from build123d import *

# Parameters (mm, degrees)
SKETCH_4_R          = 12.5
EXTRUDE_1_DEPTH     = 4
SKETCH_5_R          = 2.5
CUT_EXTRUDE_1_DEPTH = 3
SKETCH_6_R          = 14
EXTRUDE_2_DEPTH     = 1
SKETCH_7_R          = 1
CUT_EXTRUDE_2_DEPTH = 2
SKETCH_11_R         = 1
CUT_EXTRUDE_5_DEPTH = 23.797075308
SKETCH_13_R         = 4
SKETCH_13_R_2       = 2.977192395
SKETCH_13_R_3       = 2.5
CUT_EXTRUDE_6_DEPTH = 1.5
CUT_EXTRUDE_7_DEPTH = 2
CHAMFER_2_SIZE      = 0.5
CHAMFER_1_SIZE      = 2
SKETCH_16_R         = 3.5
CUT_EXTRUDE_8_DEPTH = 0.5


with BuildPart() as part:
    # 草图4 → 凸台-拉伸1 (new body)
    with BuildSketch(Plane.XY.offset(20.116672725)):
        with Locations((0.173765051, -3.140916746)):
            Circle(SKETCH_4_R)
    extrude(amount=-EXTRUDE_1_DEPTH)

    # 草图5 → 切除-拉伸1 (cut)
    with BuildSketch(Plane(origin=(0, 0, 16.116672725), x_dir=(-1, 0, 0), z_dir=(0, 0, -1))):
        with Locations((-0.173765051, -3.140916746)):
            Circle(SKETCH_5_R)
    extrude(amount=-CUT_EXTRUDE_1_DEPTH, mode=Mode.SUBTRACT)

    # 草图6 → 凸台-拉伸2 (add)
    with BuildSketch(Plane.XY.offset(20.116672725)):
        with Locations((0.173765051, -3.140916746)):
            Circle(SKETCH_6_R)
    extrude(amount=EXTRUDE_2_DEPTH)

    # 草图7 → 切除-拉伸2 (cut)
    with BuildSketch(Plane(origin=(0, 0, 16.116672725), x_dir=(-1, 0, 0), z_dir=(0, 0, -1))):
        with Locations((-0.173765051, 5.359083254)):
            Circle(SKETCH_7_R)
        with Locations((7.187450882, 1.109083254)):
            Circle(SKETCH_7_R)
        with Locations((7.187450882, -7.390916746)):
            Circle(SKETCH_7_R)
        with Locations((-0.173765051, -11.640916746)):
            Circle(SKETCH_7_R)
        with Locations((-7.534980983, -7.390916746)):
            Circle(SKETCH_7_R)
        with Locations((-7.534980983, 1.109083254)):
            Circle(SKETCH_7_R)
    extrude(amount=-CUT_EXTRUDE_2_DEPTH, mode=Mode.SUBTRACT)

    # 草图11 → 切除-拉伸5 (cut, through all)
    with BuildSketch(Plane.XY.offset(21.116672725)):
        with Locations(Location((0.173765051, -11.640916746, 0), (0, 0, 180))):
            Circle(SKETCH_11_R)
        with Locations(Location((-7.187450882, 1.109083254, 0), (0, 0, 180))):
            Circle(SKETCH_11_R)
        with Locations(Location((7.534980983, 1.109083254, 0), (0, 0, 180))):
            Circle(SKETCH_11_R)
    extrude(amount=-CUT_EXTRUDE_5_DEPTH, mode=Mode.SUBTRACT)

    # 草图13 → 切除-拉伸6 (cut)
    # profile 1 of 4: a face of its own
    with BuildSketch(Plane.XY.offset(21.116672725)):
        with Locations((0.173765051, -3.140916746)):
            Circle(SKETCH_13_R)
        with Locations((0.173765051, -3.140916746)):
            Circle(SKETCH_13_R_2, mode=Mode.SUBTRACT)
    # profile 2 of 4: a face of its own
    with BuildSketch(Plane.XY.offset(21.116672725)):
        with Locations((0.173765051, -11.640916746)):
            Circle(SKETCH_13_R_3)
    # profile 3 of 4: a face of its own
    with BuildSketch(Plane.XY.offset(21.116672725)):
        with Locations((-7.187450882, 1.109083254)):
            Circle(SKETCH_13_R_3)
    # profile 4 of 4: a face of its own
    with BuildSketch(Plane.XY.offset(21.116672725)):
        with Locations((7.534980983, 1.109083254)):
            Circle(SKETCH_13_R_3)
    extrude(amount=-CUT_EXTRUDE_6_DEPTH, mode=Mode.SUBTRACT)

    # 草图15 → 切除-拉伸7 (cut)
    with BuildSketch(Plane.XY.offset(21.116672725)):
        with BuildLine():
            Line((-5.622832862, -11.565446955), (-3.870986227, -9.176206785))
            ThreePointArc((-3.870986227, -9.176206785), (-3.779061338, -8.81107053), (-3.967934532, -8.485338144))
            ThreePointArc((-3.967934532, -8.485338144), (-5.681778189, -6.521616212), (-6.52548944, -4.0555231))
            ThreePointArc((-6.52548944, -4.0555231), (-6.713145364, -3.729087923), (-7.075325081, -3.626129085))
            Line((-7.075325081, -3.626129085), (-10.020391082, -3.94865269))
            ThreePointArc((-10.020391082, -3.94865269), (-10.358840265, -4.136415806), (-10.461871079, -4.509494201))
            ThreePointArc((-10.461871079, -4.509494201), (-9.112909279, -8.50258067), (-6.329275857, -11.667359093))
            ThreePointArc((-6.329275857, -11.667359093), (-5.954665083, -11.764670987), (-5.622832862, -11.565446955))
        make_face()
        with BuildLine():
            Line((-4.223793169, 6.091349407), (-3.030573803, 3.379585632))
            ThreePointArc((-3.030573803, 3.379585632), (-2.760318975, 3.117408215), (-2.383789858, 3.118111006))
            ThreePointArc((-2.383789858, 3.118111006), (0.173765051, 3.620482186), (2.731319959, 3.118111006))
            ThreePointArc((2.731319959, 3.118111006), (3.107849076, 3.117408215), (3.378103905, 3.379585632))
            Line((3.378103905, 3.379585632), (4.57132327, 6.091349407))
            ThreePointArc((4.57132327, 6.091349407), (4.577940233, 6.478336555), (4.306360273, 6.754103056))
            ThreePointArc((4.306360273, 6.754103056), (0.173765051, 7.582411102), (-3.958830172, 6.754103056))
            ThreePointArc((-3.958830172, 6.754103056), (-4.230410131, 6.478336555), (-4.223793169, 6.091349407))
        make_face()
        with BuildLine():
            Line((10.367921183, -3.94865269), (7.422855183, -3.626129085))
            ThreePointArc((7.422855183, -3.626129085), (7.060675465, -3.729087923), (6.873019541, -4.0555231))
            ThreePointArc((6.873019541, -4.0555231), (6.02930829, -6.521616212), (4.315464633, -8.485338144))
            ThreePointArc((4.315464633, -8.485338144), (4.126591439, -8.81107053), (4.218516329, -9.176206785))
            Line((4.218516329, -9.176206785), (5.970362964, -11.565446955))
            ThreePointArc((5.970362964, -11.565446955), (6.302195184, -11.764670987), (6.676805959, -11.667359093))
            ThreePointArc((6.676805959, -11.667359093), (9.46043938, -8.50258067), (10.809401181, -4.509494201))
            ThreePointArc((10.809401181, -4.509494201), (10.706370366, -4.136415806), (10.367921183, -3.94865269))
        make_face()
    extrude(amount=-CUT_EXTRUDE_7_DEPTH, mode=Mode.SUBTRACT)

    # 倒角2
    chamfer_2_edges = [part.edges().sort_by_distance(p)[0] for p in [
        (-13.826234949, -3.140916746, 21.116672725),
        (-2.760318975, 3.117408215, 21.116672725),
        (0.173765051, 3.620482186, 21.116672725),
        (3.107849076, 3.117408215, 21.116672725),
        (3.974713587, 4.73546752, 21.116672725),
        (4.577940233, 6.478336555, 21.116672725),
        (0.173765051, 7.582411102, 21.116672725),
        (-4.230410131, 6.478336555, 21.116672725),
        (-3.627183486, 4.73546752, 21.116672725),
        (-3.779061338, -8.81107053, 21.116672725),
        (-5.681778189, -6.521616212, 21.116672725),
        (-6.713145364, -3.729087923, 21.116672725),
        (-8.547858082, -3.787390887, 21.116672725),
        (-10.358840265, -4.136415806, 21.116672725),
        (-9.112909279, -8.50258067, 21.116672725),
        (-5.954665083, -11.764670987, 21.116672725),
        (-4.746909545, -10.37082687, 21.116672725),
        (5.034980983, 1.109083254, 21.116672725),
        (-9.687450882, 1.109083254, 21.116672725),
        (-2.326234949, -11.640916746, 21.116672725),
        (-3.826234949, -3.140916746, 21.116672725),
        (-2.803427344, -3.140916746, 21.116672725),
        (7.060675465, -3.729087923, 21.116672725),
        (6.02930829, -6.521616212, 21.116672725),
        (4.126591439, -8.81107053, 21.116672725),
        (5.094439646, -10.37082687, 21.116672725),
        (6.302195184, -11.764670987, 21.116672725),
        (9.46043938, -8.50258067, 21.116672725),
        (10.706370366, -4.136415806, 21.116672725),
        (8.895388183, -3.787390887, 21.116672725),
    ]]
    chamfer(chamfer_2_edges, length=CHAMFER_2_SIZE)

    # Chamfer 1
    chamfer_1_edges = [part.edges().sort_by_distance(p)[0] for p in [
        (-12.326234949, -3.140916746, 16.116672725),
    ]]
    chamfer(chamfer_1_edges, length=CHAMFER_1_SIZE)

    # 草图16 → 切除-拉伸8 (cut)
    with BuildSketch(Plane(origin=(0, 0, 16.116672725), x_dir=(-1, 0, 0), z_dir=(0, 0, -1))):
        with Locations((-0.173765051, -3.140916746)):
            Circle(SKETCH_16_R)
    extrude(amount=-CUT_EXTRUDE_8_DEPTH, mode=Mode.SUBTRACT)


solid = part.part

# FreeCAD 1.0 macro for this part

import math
import FreeCAD as App
import Part
import Sketcher
from FreeCAD import Vector


def edges_at(feature, points):
    """Names of the edges that pass closest to the given points."""
    edges = feature.Shape.Edges
    near = lambda p: min(range(len(edges)), key=lambda i: edges[i].distToShape(Part.Vertex(*p))[0])
    return sorted({f"Edge{near(p) + 1}" for p in points})

doc = App.newDocument("Part")
body = doc.addObject("PartDesign::Body", "Body")

# Sketch on XY plane
sketch1 = doc.addObject("Sketcher::SketchObject", "Sketch")
body.addObject(sketch1)
sketch1.AttachmentSupport = (doc.XY_Plane, [""])
sketch1.MapMode = "FlatFace"
sketch1.AttachmentOffset = App.Placement(Vector(0, 0, 20.116673), App.Rotation())
sketch1.addGeometry(Part.Circle(Vector(0.173765, -3.140917, 0), Vector(0, 0, 1), 12.5), False)
sketch1.addConstraint(Sketcher.Constraint("Diameter", 0, 25.0))
sketch1.addConstraint(Sketcher.Constraint("DistanceX", -1, 1, 0, 3, 0.173765))
sketch1.addConstraint(Sketcher.Constraint("DistanceY", 0, 3, -1, 1, 3.140917))
pad1 = doc.addObject("PartDesign::Pad", "Pad")
body.addObject(pad1)
pad1.Profile = sketch1
pad1.Length = 4
pad1.Reversed = True

# Sketch on XY plane
sketch2 = doc.addObject("Sketcher::SketchObject", "Sketch001")
body.addObject(sketch2)
sketch2.AttachmentSupport = (doc.XY_Plane, [""])
sketch2.MapMode = "FlatFace"
sketch2.AttachmentOffset = App.Placement(Vector(0, 0, 16.116673), App.Rotation())
sketch2.addGeometry(Part.Circle(Vector(0.173765, -3.140917, 0), Vector(0, 0, 1), 2.5), False)
sketch2.addConstraint(Sketcher.Constraint("Diameter", 0, 5.0))
sketch2.addConstraint(Sketcher.Constraint("DistanceX", -1, 1, 0, 3, 0.173765))
sketch2.addConstraint(Sketcher.Constraint("DistanceY", 0, 3, -1, 1, 3.140917))
pocket1 = doc.addObject("PartDesign::Pocket", "Pocket")
body.addObject(pocket1)
pocket1.Profile = sketch2
pocket1.Length = 3
pocket1.Reversed = True

# Sketch on XY plane
sketch3 = doc.addObject("Sketcher::SketchObject", "Sketch002")
body.addObject(sketch3)
sketch3.AttachmentSupport = (doc.XY_Plane, [""])
sketch3.MapMode = "FlatFace"
sketch3.AttachmentOffset = App.Placement(Vector(0, 0, 20.116673), App.Rotation())
sketch3.addGeometry(Part.Circle(Vector(0.173765, -3.140917, 0), Vector(0, 0, 1), 14), False)
sketch3.addConstraint(Sketcher.Constraint("Diameter", 0, 28.0))
sketch3.addConstraint(Sketcher.Constraint("DistanceX", -1, 1, 0, 3, 0.173765))
sketch3.addConstraint(Sketcher.Constraint("DistanceY", 0, 3, -1, 1, 3.140917))
pad2 = doc.addObject("PartDesign::Pad", "Pad001")
body.addObject(pad2)
pad2.Profile = sketch3
pad2.Length = 1

# Sketch on XY plane
sketch4 = doc.addObject("Sketcher::SketchObject", "Sketch003")
body.addObject(sketch4)
sketch4.AttachmentSupport = (doc.XY_Plane, [""])
sketch4.MapMode = "FlatFace"
sketch4.AttachmentOffset = App.Placement(Vector(0, 0, 16.116673), App.Rotation())
sketch4.addGeometry(Part.Circle(Vector(0.173765, 5.359083, 0), Vector(0, 0, 1), 1), False)
sketch4.addGeometry(Part.Circle(Vector(-7.187451, 1.109083, 0), Vector(0, 0, 1), 1), False)
sketch4.addGeometry(Part.Circle(Vector(-7.187451, -7.390917, 0), Vector(0, 0, 1), 1), False)
sketch4.addGeometry(Part.Circle(Vector(0.173765, -11.640917, 0), Vector(0, 0, 1), 1), False)
sketch4.addGeometry(Part.Circle(Vector(7.534981, -7.390917, 0), Vector(0, 0, 1), 1), False)
sketch4.addGeometry(Part.Circle(Vector(7.534981, 1.109083, 0), Vector(0, 0, 1), 1), False)
sketch4.addConstraint(Sketcher.Constraint("Equal", 0, 1))
sketch4.addConstraint(Sketcher.Constraint("Equal", 1, 2))
sketch4.addConstraint(Sketcher.Constraint("Equal", 2, 3))
sketch4.addConstraint(Sketcher.Constraint("Equal", 3, 4))
sketch4.addConstraint(Sketcher.Constraint("Equal", 4, 5))
sketch4.addConstraint(Sketcher.Constraint("Horizontal", 2, 3, 4, 3))
sketch4.addConstraint(Sketcher.Constraint("Horizontal", 1, 3, 5, 3))
sketch4.addConstraint(Sketcher.Constraint("Vertical", 1, 3, 2, 3))
sketch4.addConstraint(Sketcher.Constraint("Vertical", 0, 3, 3, 3))
sketch4.addConstraint(Sketcher.Constraint("Vertical", 4, 3, 5, 3))
sketch4.addConstraint(Sketcher.Constraint("Diameter", 0, 2.0))
sketch4.addConstraint(Sketcher.Constraint("DistanceY", 3, 3, 0, 3, 17.0))
sketch4.addConstraint(Sketcher.Constraint("DistanceY", 2, 3, 1, 3, 8.5))
sketch4.addConstraint(Sketcher.Constraint("DistanceY", 1, 3, 0, 3, 4.25))
sketch4.addConstraint(Sketcher.Constraint("DistanceX", 1, 3, -1, 1, 7.187451))
sketch4.addConstraint(Sketcher.Constraint("DistanceX", -1, 1, 4, 3, 7.534981))
sketch4.addConstraint(Sketcher.Constraint("DistanceX", -1, 1, 0, 3, 0.173765))
sketch4.addConstraint(Sketcher.Constraint("DistanceY", -1, 1, 0, 3, 5.359083))
pocket2 = doc.addObject("PartDesign::Pocket", "Pocket001")
body.addObject(pocket2)
pocket2.Profile = sketch4
pocket2.Length = 2
pocket2.Reversed = True

# Sketch on XY plane
sketch5 = doc.addObject("Sketcher::SketchObject", "Sketch004")
body.addObject(sketch5)
sketch5.AttachmentSupport = (doc.XY_Plane, [""])
sketch5.MapMode = "FlatFace"
sketch5.AttachmentOffset = App.Placement(Vector(0, 0, 21.116673), App.Rotation())
sketch5.addGeometry(Part.Circle(Vector(0.173765, -11.640917, 0), Vector(0, 0, 1), 1), False)
sketch5.addGeometry(Part.Circle(Vector(-7.187451, 1.109083, 0), Vector(0, 0, 1), 1), False)
sketch5.addGeometry(Part.Circle(Vector(7.534981, 1.109083, 0), Vector(0, 0, 1), 1), False)
sketch5.addConstraint(Sketcher.Constraint("Equal", 0, 1))
sketch5.addConstraint(Sketcher.Constraint("Equal", 1, 2))
sketch5.addConstraint(Sketcher.Constraint("Horizontal", 1, 3, 2, 3))
sketch5.addConstraint(Sketcher.Constraint("Diameter", 0, 2.0))
sketch5.addConstraint(Sketcher.Constraint("DistanceY", 0, 3, 1, 3, 12.75))
sketch5.addConstraint(Sketcher.Constraint("DistanceX", 1, 3, -1, 1, 7.187451))
sketch5.addConstraint(Sketcher.Constraint("DistanceX", -1, 1, 2, 3, 7.534981))
sketch5.addConstraint(Sketcher.Constraint("DistanceX", -1, 1, 0, 3, 0.173765))
sketch5.addConstraint(Sketcher.Constraint("DistanceY", 0, 3, -1, 1, 11.640917))
pocket3 = doc.addObject("PartDesign::Pocket", "Pocket002")
body.addObject(pocket3)
pocket3.Profile = sketch5
pocket3.Type = "ThroughAll"

# Sketch on XY plane
sketch6 = doc.addObject("Sketcher::SketchObject", "Sketch005")
body.addObject(sketch6)
sketch6.AttachmentSupport = (doc.XY_Plane, [""])
sketch6.MapMode = "FlatFace"
sketch6.AttachmentOffset = App.Placement(Vector(0, 0, 21.116673), App.Rotation())
sketch6.addGeometry(Part.Circle(Vector(0.173765, -3.140917, 0), Vector(0, 0, 1), 4), False)
sketch6.addGeometry(Part.Circle(Vector(0.173765, -3.140917, 0), Vector(0, 0, 1), 2.977192), False)
sketch6.addGeometry(Part.Circle(Vector(0.173765, -11.640917, 0), Vector(0, 0, 1), 2.5), False)
sketch6.addGeometry(Part.Circle(Vector(-7.187451, 1.109083, 0), Vector(0, 0, 1), 2.5), False)
sketch6.addGeometry(Part.Circle(Vector(7.534981, 1.109083, 0), Vector(0, 0, 1), 2.5), False)
sketch6.addConstraint(Sketcher.Constraint("Coincident", 1, 3, 0, 3))
sketch6.addConstraint(Sketcher.Constraint("Equal", 2, 3))
sketch6.addConstraint(Sketcher.Constraint("Equal", 3, 4))
sketch6.addConstraint(Sketcher.Constraint("Horizontal", 3, 3, 4, 3))
sketch6.addConstraint(Sketcher.Constraint("Vertical", 1, 3, 2, 3))
sketch6.addConstraint(Sketcher.Constraint("Diameter", 0, 8.0))
sketch6.addConstraint(Sketcher.Constraint("Diameter", 2, 5.0))
sketch6.addConstraint(Sketcher.Constraint("DistanceY", 2, 3, 0, 3, 8.5))
sketch6.addConstraint(Sketcher.Constraint("DistanceY", 0, 3, 3, 3, 4.25))
sketch6.addConstraint(Sketcher.Constraint("Diameter", 1, 5.954385))
sketch6.addConstraint(Sketcher.Constraint("DistanceX", 3, 3, -1, 1, 7.187451))
sketch6.addConstraint(Sketcher.Constraint("DistanceX", -1, 1, 4, 3, 7.534981))
sketch6.addConstraint(Sketcher.Constraint("DistanceX", -1, 1, 0, 3, 0.173765))
sketch6.addConstraint(Sketcher.Constraint("DistanceY", 0, 3, -1, 1, 3.140917))
pocket4 = doc.addObject("PartDesign::Pocket", "Pocket003")
body.addObject(pocket4)
pocket4.Profile = sketch6
pocket4.Length = 1.5

# Sketch on XY plane
sketch7 = doc.addObject("Sketcher::SketchObject", "Sketch006")
body.addObject(sketch7)
sketch7.AttachmentSupport = (doc.XY_Plane, [""])
sketch7.MapMode = "FlatFace"
sketch7.AttachmentOffset = App.Placement(Vector(0, 0, 21.116673), App.Rotation())
sketch7.addGeometry(Part.LineSegment(Vector(-5.622833, -11.565447, 0), Vector(-3.870986, -9.176207, 0)), False)
sketch7.addGeometry(Part.ArcOfCircle(Part.Circle(Vector(-4.27421, -8.880554, 0), Vector(0, 0, 1), 0.5), math.radians(-36.249739), math.radians(52.225836)), False)
sketch7.addGeometry(Part.ArcOfCircle(Part.Circle(Vector(0.173765, -3.140917, 0), Vector(0, 0, 1), 6.761399), math.radians(-172.225836), math.radians(-127.774164)), False)
sketch7.addGeometry(Part.ArcOfCircle(Part.Circle(Vector(-7.020894, -4.123158, 0), Vector(0, 0, 1), 0.5), math.radians(7.774164), math.radians(96.249739)), False)
sketch7.addGeometry(Part.LineSegment(Vector(-7.075325, -3.626129, 0), Vector(-10.020391, -3.948653, 0)), False)
sketch7.addGeometry(Part.ArcOfCircle(Part.Circle(Vector(-9.96596, -4.445681, 0), Vector(0, 0, 1), 0.5), math.radians(96.249739), math.radians(187.332441)), False)
sketch7.addGeometry(Part.ArcOfCircle(Part.Circle(Vector(0.173765, -3.140917, 0), Vector(0, 0, 1), 10.723328), math.radians(-172.66756), math.radians(-127.33244)), False)
sketch7.addGeometry(Part.ArcOfCircle(Part.Circle(Vector(-6.026057, -11.269794, 0), Vector(0, 0, 1), 0.5), math.radians(-127.33244), math.radians(-36.249739)), False)
sketch7.addGeometry(Part.LineSegment(Vector(-4.223793, 6.091349, 0), Vector(-3.030574, 3.379586, 0)), False)
sketch7.addGeometry(Part.ArcOfCircle(Part.Circle(Vector(-2.572919, 3.580961, 0), Vector(0, 0, 1), 0.5), math.radians(-156.249739), math.radians(-67.774164)), False)
sketch7.addGeometry(Part.ArcOfCircle(Part.Circle(Vector(0.173765, -3.140917, 0), Vector(0, 0, 1), 6.761399), math.radians(67.774164), math.radians(112.225836)), False)
sketch7.addGeometry(Part.ArcOfCircle(Part.Circle(Vector(2.920449, 3.580961, 0), Vector(0, 0, 1), 0.5), math.radians(-112.225836), math.radians(-23.750261)), False)
sketch7.addGeometry(Part.LineSegment(Vector(3.378104, 3.379586, 0), Vector(4.571323, 6.091349, 0)), False)
sketch7.addGeometry(Part.ArcOfCircle(Part.Circle(Vector(4.113668, 6.292725, 0), Vector(0, 0, 1), 0.5), math.radians(-23.750261), math.radians(67.33244)), False)
sketch7.addGeometry(Part.ArcOfCircle(Part.Circle(Vector(0.173765, -3.140917, 0), Vector(0, 0, 1), 10.723328), math.radians(67.33244), math.radians(112.66756)), False)
sketch7.addGeometry(Part.ArcOfCircle(Part.Circle(Vector(-3.766138, 6.292725, 0), Vector(0, 0, 1), 0.5), math.radians(112.66756), math.radians(203.750261)), False)
sketch7.addGeometry(Part.LineSegment(Vector(10.367921, -3.948653, 0), Vector(7.422855, -3.626129, 0)), False)
sketch7.addGeometry(Part.ArcOfCircle(Part.Circle(Vector(7.368424, -4.123158, 0), Vector(0, 0, 1), 0.5), math.radians(83.750261), math.radians(172.225836)), False)
sketch7.addGeometry(Part.ArcOfCircle(Part.Circle(Vector(0.173765, -3.140917, 0), Vector(0, 0, 1), 6.761399), math.radians(-52.225836), math.radians(-7.774164)), False)
sketch7.addGeometry(Part.ArcOfCircle(Part.Circle(Vector(4.62174, -8.880554, 0), Vector(0, 0, 1), 0.5), math.radians(127.774164), math.radians(216.249739)), False)
sketch7.addGeometry(Part.LineSegment(Vector(4.218516, -9.176207, 0), Vector(5.970363, -11.565447, 0)), False)
sketch7.addGeometry(Part.ArcOfCircle(Part.Circle(Vector(6.373587, -11.269794, 0), Vector(0, 0, 1), 0.5), math.radians(-143.750261), math.radians(-52.66756)), False)
sketch7.addGeometry(Part.ArcOfCircle(Part.Circle(Vector(0.173765, -3.140917, 0), Vector(0, 0, 1), 10.723328), math.radians(-52.66756), math.radians(-7.33244)), False)
sketch7.addGeometry(Part.ArcOfCircle(Part.Circle(Vector(10.31349, -4.445681, 0), Vector(0, 0, 1), 0.5), math.radians(-7.33244), math.radians(83.750261)), False)
sketch7.addConstraint(Sketcher.Constraint("Tangent", 0, 2, 1, 1))
sketch7.addConstraint(Sketcher.Constraint("Tangent", 1, 2, 2, 2))
sketch7.addConstraint(Sketcher.Constraint("Tangent", 2, 1, 3, 1))
sketch7.addConstraint(Sketcher.Constraint("Tangent", 3, 2, 4, 1))
sketch7.addConstraint(Sketcher.Constraint("Tangent", 4, 2, 5, 1))
sketch7.addConstraint(Sketcher.Constraint("Tangent", 5, 2, 6, 1))
sketch7.addConstraint(Sketcher.Constraint("Tangent", 6, 2, 7, 1))
sketch7.addConstraint(Sketcher.Constraint("Tangent", 7, 2, 0, 1))
sketch7.addConstraint(Sketcher.Constraint("Tangent", 8, 2, 9, 1))
sketch7.addConstraint(Sketcher.Constraint("Tangent", 9, 2, 10, 2))
sketch7.addConstraint(Sketcher.Constraint("Tangent", 10, 1, 11, 1))
sketch7.addConstraint(Sketcher.Constraint("Tangent", 11, 2, 12, 1))
sketch7.addConstraint(Sketcher.Constraint("Tangent", 12, 2, 13, 1))
sketch7.addConstraint(Sketcher.Constraint("Tangent", 13, 2, 14, 1))
sketch7.addConstraint(Sketcher.Constraint("Tangent", 14, 2, 15, 1))
sketch7.addConstraint(Sketcher.Constraint("Tangent", 15, 2, 8, 1))
sketch7.addConstraint(Sketcher.Constraint("Tangent", 16, 2, 17, 1))
sketch7.addConstraint(Sketcher.Constraint("Tangent", 17, 2, 18, 2))
sketch7.addConstraint(Sketcher.Constraint("Tangent", 18, 1, 19, 1))
sketch7.addConstraint(Sketcher.Constraint("Tangent", 19, 2, 20, 1))
sketch7.addConstraint(Sketcher.Constraint("Tangent", 20, 2, 21, 1))
sketch7.addConstraint(Sketcher.Constraint("Tangent", 21, 2, 22, 1))
sketch7.addConstraint(Sketcher.Constraint("Tangent", 22, 2, 23, 1))
sketch7.addConstraint(Sketcher.Constraint("Tangent", 23, 2, 16, 1))
sketch7.addConstraint(Sketcher.Constraint("Coincident", 6, 3, 2, 3))
sketch7.addConstraint(Sketcher.Constraint("Coincident", 10, 3, 2, 3))
sketch7.addConstraint(Sketcher.Constraint("Coincident", 14, 3, 2, 3))
sketch7.addConstraint(Sketcher.Constraint("Coincident", 18, 3, 2, 3))
sketch7.addConstraint(Sketcher.Constraint("Coincident", 22, 3, 2, 3))
sketch7.addConstraint(Sketcher.Constraint("Equal", 1, 3))
sketch7.addConstraint(Sketcher.Constraint("Equal", 3, 5))
sketch7.addConstraint(Sketcher.Constraint("Equal", 5, 7))
sketch7.addConstraint(Sketcher.Constraint("Equal", 7, 9))
sketch7.addConstraint(Sketcher.Constraint("Equal", 2, 10))
sketch7.addConstraint(Sketcher.Constraint("Equal", 9, 11))
sketch7.addConstraint(Sketcher.Constraint("Equal", 11, 13))
sketch7.addConstraint(Sketcher.Constraint("Equal", 6, 14))
sketch7.addConstraint(Sketcher.Constraint("Equal", 13, 15))
sketch7.addConstraint(Sketcher.Constraint("Equal", 15, 17))
sketch7.addConstraint(Sketcher.Constraint("Equal", 10, 18))
sketch7.addConstraint(Sketcher.Constraint("Equal", 17, 19))
sketch7.addConstraint(Sketcher.Constraint("Equal", 19, 21))
sketch7.addConstraint(Sketcher.Constraint("Equal", 14, 22))
sketch7.addConstraint(Sketcher.Constraint("Equal", 21, 23))
sketch7.addConstraint(Sketcher.Constraint("Horizontal", 9, 3, 11, 3))
sketch7.addConstraint(Sketcher.Constraint("Horizontal", 13, 3, 15, 3))
sketch7.addConstraint(Sketcher.Constraint("Horizontal", 3, 3, 17, 3))
sketch7.addConstraint(Sketcher.Constraint("Horizontal", 1, 3, 19, 3))
sketch7.addConstraint(Sketcher.Constraint("Horizontal", 7, 3, 21, 3))
sketch7.addConstraint(Sketcher.Constraint("Horizontal", 5, 3, 23, 3))
sketch7.addConstraint(Sketcher.Constraint("Equal", 0, 4))
sketch7.addConstraint(Sketcher.Constraint("Equal", 4, 8))
sketch7.addConstraint(Sketcher.Constraint("Radius", 1, 0.5))
sketch7.addConstraint(Sketcher.Constraint("Radius", 2, 6.761399))
sketch7.addConstraint(Sketcher.Constraint("Radius", 6, 10.723328))
sketch7.addConstraint(Sketcher.Constraint("DistanceX", -1, 1, 22, 2, 10.809401))
sketch7.addConstraint(Sketcher.Constraint("DistanceX", 1, 2, 14, 3, 4.1417))
sketch7.addConstraint(Sketcher.Constraint("DistanceX", 4, 2, 2, 1, 3.494902))
sketch7.addConstraint(Sketcher.Constraint("DistanceY", 6, 2, 3, 3, 7.544202))
sketch7.addConstraint(Sketcher.Constraint("DistanceY", 5, 3, -1, 1, 4.445681))
sketch7.addConstraint(Sketcher.Constraint("DistanceX", 9, 3, -1, 1, 2.572919))
pocket5 = doc.addObject("PartDesign::Pocket", "Pocket004")
body.addObject(pocket5)
pocket5.Profile = sketch7
pocket5.Length = 2
doc.recompute()

chamfer = doc.addObject("PartDesign::Chamfer", "Chamfer")
body.addObject(chamfer)
chamfer.Base = (pocket5, edges_at(pocket5, [
    (-13.826, -3.141, 21.117),
    (-2.76, 3.117, 21.117),
    (0.174, 3.62, 21.117),
    (3.108, 3.117, 21.117),
    (3.975, 4.735, 21.117),
    (4.578, 6.478, 21.117),
    (0.174, 7.582, 21.117),
    (-4.23, 6.478, 21.117),
    (-3.627, 4.735, 21.117),
    (-3.779, -8.811, 21.117),
    (-5.682, -6.522, 21.117),
    (-6.713, -3.729, 21.117),
    (-8.548, -3.787, 21.117),
    (-10.359, -4.136, 21.117),
    (-9.113, -8.503, 21.117),
    (-5.955, -11.765, 21.117),
    (-4.747, -10.371, 21.117),
    (5.035, 1.109, 21.117),
    (-9.687, 1.109, 21.117),
    (-2.326, -11.641, 21.117),
    (-3.826, -3.141, 21.117),
    (-2.803, -3.141, 21.117),
    (7.061, -3.729, 21.117),
    (6.029, -6.522, 21.117),
    (4.127, -8.811, 21.117),
    (5.094, -10.371, 21.117),
    (6.302, -11.765, 21.117),
    (9.46, -8.503, 21.117),
    (10.706, -4.136, 21.117),
    (8.895, -3.787, 21.117),
]))
chamfer.Size = 0.5
doc.recompute()

chamfer2 = doc.addObject("PartDesign::Chamfer", "Chamfer001")
body.addObject(chamfer2)
chamfer2.Base = (chamfer, edges_at(chamfer, [(-12.326, -3.141, 16.117)]))
chamfer2.Size = 2

# Sketch on XY plane
sketch8 = doc.addObject("Sketcher::SketchObject", "Sketch007")
body.addObject(sketch8)
sketch8.AttachmentSupport = (doc.XY_Plane, [""])
sketch8.MapMode = "FlatFace"
sketch8.AttachmentOffset = App.Placement(Vector(0, 0, 16.116673), App.Rotation())
sketch8.addGeometry(Part.Circle(Vector(0.173765, -3.140917, 0), Vector(0, 0, 1), 3.5), False)
sketch8.addConstraint(Sketcher.Constraint("Diameter", 0, 7.0))
sketch8.addConstraint(Sketcher.Constraint("DistanceX", -1, 1, 0, 3, 0.173765))
sketch8.addConstraint(Sketcher.Constraint("DistanceY", 0, 3, -1, 1, 3.140917))
pocket6 = doc.addObject("PartDesign::Pocket", "Pocket005")
body.addObject(pocket6)
pocket6.Profile = sketch8
pocket6.Length = 0.5
pocket6.Reversed = True

doc.recompute()
